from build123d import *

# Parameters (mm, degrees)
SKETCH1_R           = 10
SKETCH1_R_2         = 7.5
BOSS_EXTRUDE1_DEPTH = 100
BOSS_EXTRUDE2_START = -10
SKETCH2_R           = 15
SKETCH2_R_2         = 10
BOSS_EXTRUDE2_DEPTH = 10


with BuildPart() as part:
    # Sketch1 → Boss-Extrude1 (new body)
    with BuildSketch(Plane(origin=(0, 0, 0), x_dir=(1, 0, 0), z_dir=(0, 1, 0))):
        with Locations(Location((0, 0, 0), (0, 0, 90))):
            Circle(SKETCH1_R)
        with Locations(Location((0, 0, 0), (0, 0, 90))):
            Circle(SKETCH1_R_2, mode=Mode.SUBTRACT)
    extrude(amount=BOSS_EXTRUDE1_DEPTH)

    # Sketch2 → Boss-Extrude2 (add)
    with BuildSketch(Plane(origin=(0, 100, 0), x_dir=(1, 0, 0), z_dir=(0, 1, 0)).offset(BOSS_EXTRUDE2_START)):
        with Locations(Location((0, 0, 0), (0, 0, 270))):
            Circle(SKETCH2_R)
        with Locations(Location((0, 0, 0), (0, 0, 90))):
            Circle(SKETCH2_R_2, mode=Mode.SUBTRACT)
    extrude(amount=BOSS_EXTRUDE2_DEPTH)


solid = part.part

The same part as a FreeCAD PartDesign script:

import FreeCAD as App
import Part
import Sketcher
Q = App.Units.Quantity

doc = App.newDocument("Part")
params = doc.addObject("Spreadsheet::Sheet", "Params")
for row, (alias, value) in enumerate([
    ("sketch1_diameter", "20 mm"),
    ("sketch1_diameter2", "15 mm"),
    ("pad1_length", "100 mm"),
    ("sketch2_diameter", "30 mm"),
    ("sketch2_diameter2", "20 mm"),
    ("pad2_length", "10 mm"),
], start=1):
    params.set(f"A{row}", alias)
    params.set(f"B{row}", "=" + value)
    params.setAlias(f"B{row}", alias)

body = doc.addObject("PartDesign::Body", "Body")

# Sketch on XZ plane
sketch1 = doc.addObject("Sketcher::SketchObject", "Sketch")
body.addObject(sketch1)
sketch1.AttachmentSupport = (doc.XZ_Plane, [""])
sketch1.MapMode = "FlatFace"
sketch1.addGeometry([
    Part.Circle(App.Vector(0, 0, 0), App.Vector(0, 0, 1), 10),
    Part.Circle(App.Vector(0, 0, 0), App.Vector(0, 0, 1), 8),
], False)
sketch1.addConstraint([
    Sketcher.Constraint("Coincident", 0, 3, -1, 1),
    Sketcher.Constraint("Coincident", 1, 3, -1, 1),
    Sketcher.Constraint("Diameter", 0, Q("20 mm")),
    Sketcher.Constraint("Diameter", 1, Q("15 mm")),
])
sketch1.setExpression("Constraints[2]", "Params.sketch1_diameter")
sketch1.setExpression("Constraints[3]", "Params.sketch1_diameter2")
pad1 = doc.addObject("PartDesign::Pad", "Pad")
body.addObject(pad1)
pad1.Profile = sketch1
pad1.setExpression("Length", "Params.pad1_length")
pad1.Reversed = True

# Sketch on XZ plane
sketch2 = doc.addObject("Sketcher::SketchObject", "Sketch001")
body.addObject(sketch2)
sketch2.AttachmentSupport = (doc.XZ_Plane, [""])
sketch2.MapMode = "FlatFace"
sketch2.AttachmentOffset = App.Placement(App.Vector(0, 0, -90), App.Rotation())
sketch2.addGeometry([
    Part.Circle(App.Vector(0, 0, 0), App.Vector(0, 0, 1), 15),
    Part.Circle(App.Vector(0, 0, 0), App.Vector(0, 0, 1), 10),
], False)
sketch2.addConstraint([
    Sketcher.Constraint("Coincident", 0, 3, -1, 1),
    Sketcher.Constraint("Coincident", 1, 3, -1, 1),
    Sketcher.Constraint("Diameter", 0, Q("30 mm")),
    Sketcher.Constraint("Diameter", 1, Q("20 mm")),
])
sketch2.setExpression("Constraints[2]", "Params.sketch2_diameter")
sketch2.setExpression("Constraints[3]", "Params.sketch2_diameter2")
pad2 = doc.addObject("PartDesign::Pad", "Pad001")
body.addObject(pad2)
pad2.Profile = sketch2
pad2.setExpression("Length", "Params.pad2_length")
pad2.Reversed = True

doc.recompute()
